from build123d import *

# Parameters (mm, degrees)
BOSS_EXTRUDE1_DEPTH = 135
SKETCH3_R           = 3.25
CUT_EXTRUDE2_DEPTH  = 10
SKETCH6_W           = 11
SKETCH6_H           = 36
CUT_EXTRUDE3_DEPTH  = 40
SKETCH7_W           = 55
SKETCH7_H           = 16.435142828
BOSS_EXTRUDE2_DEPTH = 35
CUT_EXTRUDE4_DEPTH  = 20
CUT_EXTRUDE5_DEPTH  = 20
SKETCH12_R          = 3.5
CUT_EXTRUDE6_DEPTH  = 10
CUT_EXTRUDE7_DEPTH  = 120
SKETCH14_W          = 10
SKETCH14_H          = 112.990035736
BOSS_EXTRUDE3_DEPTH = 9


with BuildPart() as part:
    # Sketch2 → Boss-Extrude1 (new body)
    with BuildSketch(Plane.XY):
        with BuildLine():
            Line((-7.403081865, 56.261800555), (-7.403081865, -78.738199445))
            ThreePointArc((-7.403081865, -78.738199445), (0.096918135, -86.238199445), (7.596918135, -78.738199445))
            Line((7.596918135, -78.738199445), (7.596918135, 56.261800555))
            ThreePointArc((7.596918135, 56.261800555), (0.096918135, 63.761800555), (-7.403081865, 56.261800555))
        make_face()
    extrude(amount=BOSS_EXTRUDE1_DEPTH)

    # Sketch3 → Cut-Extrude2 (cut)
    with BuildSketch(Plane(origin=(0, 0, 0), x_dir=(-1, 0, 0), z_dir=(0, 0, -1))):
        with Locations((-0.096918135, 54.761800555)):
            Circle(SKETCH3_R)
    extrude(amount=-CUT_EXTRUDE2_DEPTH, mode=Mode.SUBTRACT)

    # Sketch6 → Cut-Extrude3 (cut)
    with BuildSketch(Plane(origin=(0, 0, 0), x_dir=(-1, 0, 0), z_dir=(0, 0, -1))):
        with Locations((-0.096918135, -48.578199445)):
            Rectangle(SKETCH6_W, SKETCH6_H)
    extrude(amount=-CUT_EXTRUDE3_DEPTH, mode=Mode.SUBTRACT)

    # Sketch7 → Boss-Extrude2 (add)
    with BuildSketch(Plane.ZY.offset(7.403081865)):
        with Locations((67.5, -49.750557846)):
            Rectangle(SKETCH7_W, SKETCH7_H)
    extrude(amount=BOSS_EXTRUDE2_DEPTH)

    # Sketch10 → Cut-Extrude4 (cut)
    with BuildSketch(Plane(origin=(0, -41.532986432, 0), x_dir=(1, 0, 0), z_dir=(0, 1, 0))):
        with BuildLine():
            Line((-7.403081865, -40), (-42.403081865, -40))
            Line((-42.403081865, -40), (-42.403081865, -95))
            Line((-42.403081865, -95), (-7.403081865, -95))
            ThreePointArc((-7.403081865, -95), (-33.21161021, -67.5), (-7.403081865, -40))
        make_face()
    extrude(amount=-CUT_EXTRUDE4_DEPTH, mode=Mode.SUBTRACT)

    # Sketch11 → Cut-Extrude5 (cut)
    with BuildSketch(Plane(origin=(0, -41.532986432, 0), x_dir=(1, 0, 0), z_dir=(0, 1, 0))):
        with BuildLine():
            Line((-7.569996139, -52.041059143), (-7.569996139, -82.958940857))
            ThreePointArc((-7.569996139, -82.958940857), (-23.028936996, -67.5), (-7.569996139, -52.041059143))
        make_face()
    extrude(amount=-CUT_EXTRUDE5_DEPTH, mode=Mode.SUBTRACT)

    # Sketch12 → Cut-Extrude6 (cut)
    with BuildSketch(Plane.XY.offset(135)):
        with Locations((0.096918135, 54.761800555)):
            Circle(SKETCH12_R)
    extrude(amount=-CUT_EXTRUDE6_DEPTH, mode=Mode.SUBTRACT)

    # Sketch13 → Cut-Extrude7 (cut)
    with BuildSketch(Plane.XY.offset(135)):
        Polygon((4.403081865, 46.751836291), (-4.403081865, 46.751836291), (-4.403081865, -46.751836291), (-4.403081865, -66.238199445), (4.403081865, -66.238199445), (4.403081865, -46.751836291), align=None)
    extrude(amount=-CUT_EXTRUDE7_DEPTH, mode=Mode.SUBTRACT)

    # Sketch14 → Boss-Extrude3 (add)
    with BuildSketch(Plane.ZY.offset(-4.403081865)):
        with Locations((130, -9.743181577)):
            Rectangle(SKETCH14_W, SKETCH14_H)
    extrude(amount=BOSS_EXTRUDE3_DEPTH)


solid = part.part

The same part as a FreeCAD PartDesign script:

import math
import FreeCAD as App
import Part
import Sketcher


def add_polygon(sketch, points):
    """Adds a closed chain of lines whose ends are joined by coincident constraints."""
    first, n = sketch.GeometryCount, len(points)
    for a, b in zip(points, points[1:] + points[:1]):
        sketch.addGeometry(Part.LineSegment(App.Vector(*a, 0), App.Vector(*b, 0)), False)
    for i in range(n):
        sketch.addConstraint(Sketcher.Constraint("Coincident", first + i, 2, first + (i + 1) % n, 1))

doc = App.newDocument("Part")
body = doc.addObject("PartDesign::Body", "Body")

# Sketch on XY plane
sketch1 = body.newObject("Sketcher::SketchObject", "Sketch")
sketch1.AttachmentSupport = (doc.getObject("XY_Plane"), [""])
sketch1.MapMode = "FlatFace"
sketch1.addGeometry([
    Part.LineSegment(App.Vector(-7, 56, 0), App.Vector(-7, -79, 0)),
    Part.ArcOfCircle(Part.Circle(App.Vector(0, -79, 0), App.Vector(0, 0, 1), 8), math.radians(180), math.radians(360)),
    Part.LineSegment(App.Vector(8, -79, 0), App.Vector(8, 56, 0)),
    Part.ArcOfCircle(Part.Circle(App.Vector(0, 56, 0), App.Vector(0, 0, 1), 8), math.radians(0), math.radians(180)),
], False)
sketch1.addConstraint([
    Sketcher.Constraint("Tangent", 0, 2, 1, 1),
    Sketcher.Constraint("Tangent", 1, 2, 2, 1),
    Sketcher.Constraint("Tangent", 2, 2, 3, 1),
    Sketcher.Constraint("Tangent", 3, 2, 0, 1),
    Sketcher.Constraint("Vertical", 0),
    Sketcher.Constraint("Vertical", 2),
    Sketcher.Constraint("Radius", 1, 7.5),
    Sketcher.Constraint("DistanceY", 0, 2, 0, 1, 135.0),
    Sketcher.Constraint("DistanceY", 1, 3, -1, 1, 78.738199),
    Sketcher.Constraint("DistanceX", -1, 1, 1, 3, 0.096918),
])
pad1 = body.newObject("PartDesign::Pad", "Pad")
pad1.Profile = sketch1
pad1.Length = 135

# Sketch on XY plane
sketch2 = body.newObject("Sketcher::SketchObject", "Sketch001")
sketch2.AttachmentSupport = (doc.getObject("XY_Plane"), [""])
sketch2.MapMode = "FlatFace"
sketch2.addGeometry(Part.Circle(App.Vector(0.1, 54.8, 0), App.Vector(0, 0, 1), 3.2), False)
sketch2.addConstraint([
    Sketcher.Constraint("Diameter", 0, 6.5),
    Sketcher.Constraint("DistanceY", -1, 1, 0, 3, 54.761801),
    Sketcher.Constraint("DistanceX", -1, 1, 0, 3, 0.096918),
])
pocket1 = body.newObject("PartDesign::Pocket", "Pocket")
pocket1.Profile = sketch2
pocket1.Length = 10
pocket1.Reversed = True

# Sketch on XY plane
sketch3 = body.newObject("Sketcher::SketchObject", "Sketch002")
sketch3.AttachmentSupport = (doc.getObject("XY_Plane"), [""])
sketch3.MapMode = "FlatFace"
add_polygon(sketch3, [(6, -31), (6, -67), (-5, -67), (-5, -31)])  # lines 0-3
sketch3.addConstraint([
    Sketcher.Constraint("Vertical", 0),
    Sketcher.Constraint("Horizontal", 1),
    Sketcher.Constraint("Vertical", 2),
    Sketcher.Constraint("Horizontal", 3),
    Sketcher.Constraint("DistanceX", 1, 2, 1, 1, 11.0),
    Sketcher.Constraint("DistanceY", 0, 2, 0, 1, 36.0),
    Sketcher.Constraint("DistanceY", 0, 2, -1, 1, 66.578199),
    Sketcher.Constraint("DistanceX", -1, 1, 0, 2, 5.596918),
])
pocket2 = body.newObject("PartDesign::Pocket", "Pocket001")
pocket2.Profile = sketch3
pocket2.Length = 40
pocket2.Reversed = True

# Sketch on YZ plane
sketch4 = body.newObject("Sketcher::SketchObject", "Sketch003")
sketch4.AttachmentSupport = (doc.getObject("YZ_Plane"), [""])
sketch4.MapMode = "FlatFace"
sketch4.AttachmentOffset = App.Placement(App.Vector(0, 0, -7.403082), App.Rotation())
add_polygon(sketch4, [(-42, 40), (-58, 40), (-58, 95), (-42, 95)])  # lines 0-3
sketch4.addConstraint([
    Sketcher.Constraint("Horizontal", 0),
    Sketcher.Constraint("Vertical", 1),
    Sketcher.Constraint("Horizontal", 2),
    Sketcher.Constraint("Vertical", 3),
    Sketcher.Constraint("DistanceY", 1, 1, 1, 2, 55.0),
    Sketcher.Constraint("DistanceY", -1, 1, 0, 2, 40.0),
    Sketcher.Constraint("DistanceX", 0, 2, 0, 1, 16.435143),
    Sketcher.Constraint("DistanceX", 0, 2, -1, 1, 57.968129),
])
pad2 = body.newObject("PartDesign::Pad", "Pad001")
pad2.Profile = sketch4
pad2.Length = 35
pad2.Reversed = True

# Sketch on XZ plane
sketch5 = body.newObject("Sketcher::SketchObject", "Sketch004")
sketch5.AttachmentSupport = (doc.getObject("XZ_Plane"), [""])
sketch5.MapMode = "FlatFace"
sketch5.AttachmentOffset = App.Placement(App.Vector(0, 0, 41.532986), App.Rotation())
sketch5.addGeometry([
    Part.LineSegment(App.Vector(-7, 40, 0), App.Vector(-42, 40, 0)),
    Part.LineSegment(App.Vector(-42, 40, 0), App.Vector(-42, 95, 0)),
    Part.LineSegment(App.Vector(-42, 95, 0), App.Vector(-7, 95, 0)),
    Part.ArcOfCircle(Part.Circle(App.Vector(-6, 68, 0), App.Vector(0, 0, 1), 28), math.radians(94), math.radians(266)),
], False)
sketch5.addConstraint([
    Sketcher.Constraint("Coincident", 0, 2, 1, 1),
    Sketcher.Constraint("Coincident", 1, 2, 2, 1),
    Sketcher.Constraint("Coincident", 2, 2, 3, 1),
    Sketcher.Constraint("Coincident", 3, 2, 0, 1),
    Sketcher.Constraint("Horizontal", 0),
    Sketcher.Constraint("Vertical", 1),
    Sketcher.Constraint("Horizontal", 2),
    Sketcher.Constraint("Vertical", 2, 2, 3, 2),
    Sketcher.Constraint("DistanceX", 0, 2, 0, 1, 35.0),
    Sketcher.Constraint("DistanceY", 1, 1, 1, 2, 55.0),
    Sketcher.Constraint("DistanceY", -1, 1, 0, 2, 40.0),
    Sketcher.Constraint("Radius", 3, 27.555429),
    Sketcher.Constraint("DistanceX", 3, 3, -1, 1, 5.656181),
])
pocket3 = body.newObject("PartDesign::Pocket", "Pocket002")
pocket3.Profile = sketch5
pocket3.Length = 20
pocket3.Reversed = True

# Sketch on XZ plane
sketch6 = body.newObject("Sketcher::SketchObject", "Sketch005")
sketch6.AttachmentSupport = (doc.getObject("XZ_Plane"), [""])
sketch6.MapMode = "FlatFace"
sketch6.AttachmentOffset = App.Placement(App.Vector(0, 0, 41.532986), App.Rotation())
sketch6.addGeometry([
    Part.LineSegment(App.Vector(-8, 83, 0), App.Vector(-8, 52, 0)),
    Part.ArcOfCircle(Part.Circle(App.Vector(-8, 68, 0), App.Vector(0, 0, 1), 15), math.radians(90), math.radians(270)),
], False)
sketch6.addConstraint([
    Sketcher.Constraint("Coincident", 0, 1, 1, 1),
    Sketcher.Constraint("Coincident", 1, 2, 0, 2),
    Sketcher.Constraint("Vertical", 0),
    Sketcher.Constraint("Vertical", 1, 3, 0, 1),
    Sketcher.Constraint("DistanceY", -1, 1, 1, 3, 67.5),
    Sketcher.Constraint("Radius", 1, 15.458941),
    Sketcher.Constraint("DistanceX", 1, 3, -1, 1, 7.569996),
])
pocket4 = body.newObject("PartDesign::Pocket", "Pocket003")
pocket4.Profile = sketch6
pocket4.Length = 20
pocket4.Reversed = True

# Sketch on XY plane
sketch7 = body.newObject("Sketcher::SketchObject", "Sketch006")
sketch7.AttachmentSupport = (doc.getObject("XY_Plane"), [""])
sketch7.MapMode = "FlatFace"
sketch7.AttachmentOffset = App.Placement(App.Vector(0, 0, 135), App.Rotation())
sketch7.addGeometry(Part.Circle(App.Vector(0.1, 54.8, 0), App.Vector(0, 0, 1), 3.5), False)
sketch7.addConstraint([
    Sketcher.Constraint("Diameter", 0, 7.0),
    Sketcher.Constraint("DistanceY", -1, 1, 0, 3, 54.761801),
    Sketcher.Constraint("DistanceX", -1, 1, 0, 3, 0.096918),
])
pocket5 = body.newObject("PartDesign::Pocket", "Pocket004")
pocket5.Profile = sketch7
pocket5.Length = 10

# Sketch on XY plane
sketch8 = body.newObject("Sketcher::SketchObject", "Sketch007")
sketch8.AttachmentSupport = (doc.getObject("XY_Plane"), [""])
sketch8.MapMode = "FlatFace"
sketch8.AttachmentOffset = App.Placement(App.Vector(0, 0, 135), App.Rotation())
add_polygon(sketch8, [(4, 47), (-4, 47), (-4, -66), (4, -66)])  # lines 0-3
sketch8.addConstraint([
    Sketcher.Constraint("Horizontal", 0),
    Sketcher.Constraint("Vertical", 1),
    Sketcher.Constraint("Horizontal", 2),
    Sketcher.Constraint("Vertical", 3),
    Sketcher.Constraint("DistanceY", 1, 2, -1, 1, 66.238199),
    Sketcher.Constraint("DistanceX", 0, 2, 0, 1, 8.806164),
    Sketcher.Constraint("DistanceY", 1, 2, 1, 1, 112.990036),
    Sketcher.Constraint("DistanceX", 0, 2, -1, 1, 4.403082),
])
pocket6 = body.newObject("PartDesign::Pocket", "Pocket005")
pocket6.Profile = sketch8
pocket6.Length = 120

# Sketch on YZ plane
sketch9 = body.newObject("Sketcher::SketchObject", "Sketch008")
sketch9.AttachmentSupport = (doc.getObject("YZ_Plane"), [""])
sketch9.MapMode = "FlatFace"
sketch9.AttachmentOffset = App.Placement(App.Vector(0, 0, 4.403082), App.Rotation())
add_polygon(sketch9, [(47, 125), (-66, 125), (-66, 135), (47, 135)])  # lines 0-3
sketch9.addConstraint([
    Sketcher.Constraint("Horizontal", 0),
    Sketcher.Constraint("Vertical", 1),
    Sketcher.Constraint("Horizontal", 2),
    Sketcher.Constraint("Vertical", 3),
    Sketcher.Constraint("DistanceY", 1, 1, 1, 2, 10.0),
    Sketcher.Constraint("DistanceY", -1, 1, 0, 2, 125.0),
    Sketcher.Constraint("DistanceX", 0, 2, -1, 1, 66.238199),
    Sketcher.Constraint("DistanceX", 0, 2, 0, 1, 112.990036),
])
pad3 = body.newObject("PartDesign::Pad", "Pad002")
pad3.Profile = sketch9
pad3.Length = 9
pad3.Reversed = True

doc.recompute()
